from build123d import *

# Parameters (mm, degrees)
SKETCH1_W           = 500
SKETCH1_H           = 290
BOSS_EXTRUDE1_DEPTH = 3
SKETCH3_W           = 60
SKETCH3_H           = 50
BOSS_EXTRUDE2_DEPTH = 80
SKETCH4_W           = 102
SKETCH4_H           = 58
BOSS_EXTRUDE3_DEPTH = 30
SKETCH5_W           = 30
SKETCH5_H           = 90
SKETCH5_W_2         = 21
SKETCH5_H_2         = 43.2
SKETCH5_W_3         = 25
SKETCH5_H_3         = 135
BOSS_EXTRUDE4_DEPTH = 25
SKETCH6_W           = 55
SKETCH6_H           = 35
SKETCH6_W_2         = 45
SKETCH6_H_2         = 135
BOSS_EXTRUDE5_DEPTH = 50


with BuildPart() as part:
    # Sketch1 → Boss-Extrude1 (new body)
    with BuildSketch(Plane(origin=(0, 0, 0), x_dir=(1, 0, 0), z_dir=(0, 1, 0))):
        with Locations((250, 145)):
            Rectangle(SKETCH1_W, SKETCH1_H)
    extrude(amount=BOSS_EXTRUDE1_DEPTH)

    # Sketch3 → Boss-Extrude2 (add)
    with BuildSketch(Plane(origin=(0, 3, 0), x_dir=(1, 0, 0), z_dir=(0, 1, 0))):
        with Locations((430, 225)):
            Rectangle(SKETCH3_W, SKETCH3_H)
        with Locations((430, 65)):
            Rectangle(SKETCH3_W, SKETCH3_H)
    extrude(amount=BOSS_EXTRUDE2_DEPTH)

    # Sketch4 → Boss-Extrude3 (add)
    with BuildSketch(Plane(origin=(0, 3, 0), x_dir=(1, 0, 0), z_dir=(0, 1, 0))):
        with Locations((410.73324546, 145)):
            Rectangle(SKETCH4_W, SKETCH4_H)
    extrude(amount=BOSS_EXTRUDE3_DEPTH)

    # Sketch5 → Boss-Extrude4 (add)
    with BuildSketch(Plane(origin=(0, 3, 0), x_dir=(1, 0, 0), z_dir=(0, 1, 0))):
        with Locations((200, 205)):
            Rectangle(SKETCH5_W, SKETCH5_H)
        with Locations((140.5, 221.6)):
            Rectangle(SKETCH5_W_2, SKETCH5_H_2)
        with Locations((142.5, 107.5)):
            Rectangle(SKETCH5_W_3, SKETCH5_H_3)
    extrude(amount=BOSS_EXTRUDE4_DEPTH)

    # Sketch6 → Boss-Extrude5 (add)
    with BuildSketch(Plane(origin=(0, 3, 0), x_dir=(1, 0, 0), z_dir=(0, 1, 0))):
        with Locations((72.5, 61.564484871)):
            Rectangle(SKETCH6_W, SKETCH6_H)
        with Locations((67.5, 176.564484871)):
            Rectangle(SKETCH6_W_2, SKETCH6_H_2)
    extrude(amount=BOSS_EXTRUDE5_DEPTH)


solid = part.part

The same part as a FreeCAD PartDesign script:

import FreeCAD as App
import Part
import Sketcher
from FreeCAD import Vector

doc = App.newDocument("Part")
params = doc.addObject("Spreadsheet::Sheet", "Params")
for row, (alias, value) in enumerate([
    ("sketch1_width", "500 mm"),
    ("sketch1_height", "290 mm"),
    ("pad1_length", "3 mm"),
    ("sketch2_width", "60 mm"),
    ("sketch2_height", "50 mm"),
    ("pad2_length", "80 mm"),
    ("sketch3_width", "102 mm"),
    ("sketch3_height", "58 mm"),
    ("pad3_length", "30 mm"),
    ("sketch4_width", "30 mm"),
    ("sketch4_width2", "21 mm"),
    ("sketch4_width3", "25 mm"),
    ("sketch4_height", "90 mm"),
    ("sketch4_height2", "135 mm"),
    ("pad4_length", "25 mm"),
    ("sketch5_width", "55 mm"),
    ("sketch5_width2", "45 mm"),
    ("sketch5_height", "35 mm"),
    ("sketch5_height2", "135 mm"),
    ("pad5_length", "50 mm"),
], start=1):
    params.set(f"A{row}", alias)
    params.set(f"B{row}", "=" + value)
    params.setAlias(f"B{row}", alias)

body = doc.addObject("PartDesign::Body", "Body")

# Sketch on XZ plane
sketch1 = body.newObject("Sketcher::SketchObject", "Sketch")
sketch1.AttachmentSupport = (doc.getObject("XZ_Plane"), [""])
sketch1.MapMode = "FlatFace"
sketch1.addGeometry([
    Part.LineSegment(Vector(0, -290, 0), Vector(0, 0, 0)),
    Part.LineSegment(Vector(0, 0, 0), Vector(500, 0, 0)),
    Part.LineSegment(Vector(500, 0, 0), Vector(500, -290, 0)),
    Part.LineSegment(Vector(500, -290, 0), Vector(0, -290, 0)),
], False)
sketch1.addConstraint([
    Sketcher.Constraint("Coincident", 0, 2, 1, 1),
    Sketcher.Constraint("Coincident", 1, 2, 2, 1),
    Sketcher.Constraint("Coincident", 2, 2, 3, 1),
    Sketcher.Constraint("Coincident", 3, 2, 0, 1),
    Sketcher.Constraint("Vertical", 0),
    Sketcher.Constraint("Horizontal", 1),
    Sketcher.Constraint("Vertical", 2),
    Sketcher.Constraint("Horizontal", 3),
    Sketcher.Constraint("Coincident", 0, 2, -1, 1),
    Sketcher.Constraint("DistanceX", 1, 1, 1, 2, 500.0),
    Sketcher.Constraint("DistanceY", 0, 1, 0, 2, 290.0),
])
sketch1.setExpression("Constraints[9]", "Params.sketch1_width")
sketch1.setExpression("Constraints[10]", "Params.sketch1_height")
pad1 = body.newObject("PartDesign::Pad", "Pad")
pad1.Profile = sketch1
pad1.setExpression("Length", "Params.pad1_length")
pad1.Reversed = True

# Sketch on XZ plane
sketch2 = body.newObject("Sketcher::SketchObject", "Sketch001")
sketch2.AttachmentSupport = (doc.getObject("XZ_Plane"), [""])
sketch2.MapMode = "FlatFace"
sketch2.AttachmentOffset = App.Placement(Vector(0, 0, -3), App.Rotation())
sketch2.addGeometry([
    Part.LineSegment(Vector(400, -250, 0), Vector(400, -200, 0)),  # 0
    Part.LineSegment(Vector(400, -200, 0), Vector(460, -200, 0)),  # 1
    Part.LineSegment(Vector(460, -200, 0), Vector(460, -250, 0)),  # 2
    Part.LineSegment(Vector(460, -250, 0), Vector(400, -250, 0)),  # 3
    Part.LineSegment(Vector(400, -90, 0), Vector(400, -40, 0)),  # 4
    Part.LineSegment(Vector(400, -40, 0), Vector(460, -40, 0)),  # 5
    Part.LineSegment(Vector(460, -40, 0), Vector(460, -90, 0)),  # 6
    Part.LineSegment(Vector(460, -90, 0), Vector(400, -90, 0)),  # 7
], False)
sketch2.addConstraint([
    Sketcher.Constraint("Coincident", 0, 2, 1, 1),
    Sketcher.Constraint("Coincident", 1, 2, 2, 1),
    Sketcher.Constraint("Coincident", 2, 2, 3, 1),
    Sketcher.Constraint("Coincident", 3, 2, 0, 1),
    Sketcher.Constraint("Coincident", 4, 2, 5, 1),
    Sketcher.Constraint("Coincident", 5, 2, 6, 1),
    Sketcher.Constraint("Coincident", 6, 2, 7, 1),
    Sketcher.Constraint("Coincident", 7, 2, 4, 1),
    Sketcher.Constraint("Vertical", 0),
    Sketcher.Constraint("Horizontal", 1),
    Sketcher.Constraint("Vertical", 2),
    Sketcher.Constraint("Horizontal", 3),
    Sketcher.Constraint("Vertical", 4),
    Sketcher.Constraint("Horizontal", 5),
    Sketcher.Constraint("Vertical", 6),
    Sketcher.Constraint("Horizontal", 7),
    Sketcher.Constraint("Vertical", 3, 2, 4, 2),
    Sketcher.Constraint("Vertical", 2, 2, 5, 2),
    Sketcher.Constraint("Equal", 2, 4),
    Sketcher.Constraint("DistanceX", 1, 1, 1, 2, 60.0),
    Sketcher.Constraint("DistanceY", 0, 1, 0, 2, 50.0),
    Sketcher.Constraint("DistanceX", -1, 1, 0, 2, 400.0),
    Sketcher.Constraint("DistanceY", 0, 2, -1, 1, 200.0),
    Sketcher.Constraint("DistanceY", 4, 2, -1, 1, 40.0),
])
sketch2.setExpression("Constraints[19]", "Params.sketch2_width")
sketch2.setExpression("Constraints[20]", "Params.sketch2_height")
pad2 = body.newObject("PartDesign::Pad", "Pad001")
pad2.Profile = sketch2
pad2.setExpression("Length", "Params.pad2_length")
pad2.Reversed = True

# Sketch on XZ plane
sketch3 = body.newObject("Sketcher::SketchObject", "Sketch002")
sketch3.AttachmentSupport = (doc.getObject("XZ_Plane"), [""])
sketch3.MapMode = "FlatFace"
sketch3.AttachmentOffset = App.Placement(Vector(0, 0, -3), App.Rotation())
sketch3.addGeometry([
    Part.LineSegment(Vector(360, -174, 0), Vector(360, -116, 0)),
    Part.LineSegment(Vector(360, -116, 0), Vector(462, -116, 0)),
    Part.LineSegment(Vector(462, -116, 0), Vector(462, -174, 0)),
    Part.LineSegment(Vector(462, -174, 0), Vector(360, -174, 0)),
], False)
sketch3.addConstraint([
    Sketcher.Constraint("Coincident", 0, 2, 1, 1),
    Sketcher.Constraint("Coincident", 1, 2, 2, 1),
    Sketcher.Constraint("Coincident", 2, 2, 3, 1),
    Sketcher.Constraint("Coincident", 3, 2, 0, 1),
    Sketcher.Constraint("Vertical", 0),
    Sketcher.Constraint("Horizontal", 1),
    Sketcher.Constraint("Vertical", 2),
    Sketcher.Constraint("Horizontal", 3),
    Sketcher.Constraint("DistanceX", 1, 1, 1, 2, 102.0),
    Sketcher.Constraint("DistanceY", 0, 1, 0, 2, 58.0),
    Sketcher.Constraint("DistanceY", 0, 2, -1, 1, 116.0),
    Sketcher.Constraint("DistanceX", -1, 1, 0, 2, 359.733245),
])
sketch3.setExpression("Constraints[8]", "Params.sketch3_width")
sketch3.setExpression("Constraints[9]", "Params.sketch3_height")
pad3 = body.newObject("PartDesign::Pad", "Pad002")
pad3.Profile = sketch3
pad3.setExpression("Length", "Params.pad3_length")
pad3.Reversed = True

# Sketch on XZ plane
sketch4 = body.newObject("Sketcher::SketchObject", "Sketch003")
sketch4.AttachmentSupport = (doc.getObject("XZ_Plane"), [""])
sketch4.MapMode = "FlatFace"
sketch4.AttachmentOffset = App.Placement(Vector(0, 0, -3), App.Rotation())
sketch4.addGeometry([
    Part.LineSegment(Vector(185, -250, 0), Vector(185, -160, 0)),  # 0
    Part.LineSegment(Vector(185, -160, 0), Vector(215, -160, 0)),  # 1
    Part.LineSegment(Vector(215, -160, 0), Vector(215, -250, 0)),  # 2
    Part.LineSegment(Vector(215, -250, 0), Vector(185, -250, 0)),  # 3
    Part.LineSegment(Vector(130, -243, 0), Vector(130, -200, 0)),  # 4
    Part.LineSegment(Vector(130, -200, 0), Vector(151, -200, 0)),  # 5
    Part.LineSegment(Vector(151, -200, 0), Vector(151, -243, 0)),  # 6
    Part.LineSegment(Vector(151, -243, 0), Vector(130, -243, 0)),  # 7
    Part.LineSegment(Vector(130, -175, 0), Vector(130, -40, 0)),  # 8
    Part.LineSegment(Vector(130, -40, 0), Vector(155, -40, 0)),  # 9
    Part.LineSegment(Vector(155, -40, 0), Vector(155, -175, 0)),  # 10
    Part.LineSegment(Vector(155, -175, 0), Vector(130, -175, 0)),  # 11
], False)
sketch4.addConstraint([
    Sketcher.Constraint("Coincident", 0, 2, 1, 1),
    Sketcher.Constraint("Coincident", 1, 2, 2, 1),
    Sketcher.Constraint("Coincident", 2, 2, 3, 1),
    Sketcher.Constraint("Coincident", 3, 2, 0, 1),
    Sketcher.Constraint("Coincident", 4, 2, 5, 1),
    Sketcher.Constraint("Coincident", 5, 2, 6, 1),
    Sketcher.Constraint("Coincident", 6, 2, 7, 1),
    Sketcher.Constraint("Coincident", 7, 2, 4, 1),
    Sketcher.Constraint("Coincident", 8, 2, 9, 1),
    Sketcher.Constraint("Coincident", 9, 2, 10, 1),
    Sketcher.Constraint("Coincident", 10, 2, 11, 1),
    Sketcher.Constraint("Coincident", 11, 2, 8, 1),
    Sketcher.Constraint("Vertical", 0),
    Sketcher.Constraint("Horizontal", 1),
    Sketcher.Constraint("Vertical", 2),
    Sketcher.Constraint("Horizontal", 3),
    Sketcher.Constraint("Vertical", 4),
    Sketcher.Constraint("Horizontal", 5),
    Sketcher.Constraint("Vertical", 6),
    Sketcher.Constraint("Horizontal", 7),
    Sketcher.Constraint("Vertical", 8),
    Sketcher.Constraint("Horizontal", 9),
    Sketcher.Constraint("Vertical", 10),
    Sketcher.Constraint("Horizontal", 11),
    Sketcher.Constraint("Vertical", 7, 2, 8, 2),
    Sketcher.Constraint("DistanceX", 1, 1, 1, 2, 30.0),
    Sketcher.Constraint("DistanceX", 5, 1, 5, 2, 21.0),
    Sketcher.Constraint("DistanceX", 9, 1, 9, 2, 25.0),
    Sketcher.Constraint("DistanceY", 0, 1, 0, 2, 90.0),
    Sketcher.Constraint("DistanceY", 8, 1, 8, 2, 135.0),
    Sketcher.Constraint("DistanceY", 4, 1, 4, 2, 43.2),
    Sketcher.Constraint("DistanceX", -1, 1, 0, 2, 185.0),
    Sketcher.Constraint("DistanceY", 0, 2, -1, 1, 160.0),
    Sketcher.Constraint("DistanceX", -1, 1, 4, 2, 130.0),
    Sketcher.Constraint("DistanceY", 4, 2, -1, 1, 200.0),
    Sketcher.Constraint("DistanceY", 8, 2, -1, 1, 40.0),
])
sketch4.setExpression("Constraints[25]", "Params.sketch4_width")
sketch4.setExpression("Constraints[26]", "Params.sketch4_width2")
sketch4.setExpression("Constraints[27]", "Params.sketch4_width3")
sketch4.setExpression("Constraints[28]", "Params.sketch4_height")
sketch4.setExpression("Constraints[29]", "Params.sketch4_height2")
pad4 = body.newObject("PartDesign::Pad", "Pad003")
pad4.Profile = sketch4
pad4.setExpression("Length", "Params.pad4_length")
pad4.Reversed = True

# Sketch on XZ plane
sketch5 = body.newObject("Sketcher::SketchObject", "Sketch004")
sketch5.AttachmentSupport = (doc.getObject("XZ_Plane"), [""])
sketch5.MapMode = "FlatFace"
sketch5.AttachmentOffset = App.Placement(Vector(0, 0, -3), App.Rotation())
sketch5.addGeometry([
    Part.LineSegment(Vector(45, -79, 0), Vector(45, -44, 0)),  # 0
    Part.LineSegment(Vector(45, -44, 0), Vector(100, -44, 0)),  # 1
    Part.LineSegment(Vector(100, -44, 0), Vector(100, -79, 0)),  # 2
    Part.LineSegment(Vector(100, -79, 0), Vector(45, -79, 0)),  # 3
    Part.LineSegment(Vector(45, -244, 0), Vector(45, -109, 0)),  # 4
    Part.LineSegment(Vector(45, -109, 0), Vector(90, -109, 0)),  # 5
    Part.LineSegment(Vector(90, -109, 0), Vector(90, -244, 0)),  # 6
    Part.LineSegment(Vector(90, -244, 0), Vector(45, -244, 0)),  # 7
], False)
sketch5.addConstraint([
    Sketcher.Constraint("Coincident", 0, 2, 1, 1),
    Sketcher.Constraint("Coincident", 1, 2, 2, 1),
    Sketcher.Constraint("Coincident", 2, 2, 3, 1),
    Sketcher.Constraint("Coincident", 3, 2, 0, 1),
    Sketcher.Constraint("Coincident", 4, 2, 5, 1),
    Sketcher.Constraint("Coincident", 5, 2, 6, 1),
    Sketcher.Constraint("Coincident", 6, 2, 7, 1),
    Sketcher.Constraint("Coincident", 7, 2, 4, 1),
    Sketcher.Constraint("Vertical", 0),
    Sketcher.Constraint("Horizontal", 1),
    Sketcher.Constraint("Vertical", 2),
    Sketcher.Constraint("Horizontal", 3),
    Sketcher.Constraint("Vertical", 4),
    Sketcher.Constraint("Horizontal", 5),
    Sketcher.Constraint("Vertical", 6),
    Sketcher.Constraint("Horizontal", 7),
    Sketcher.Constraint("Vertical", 3, 2, 4, 2),
    Sketcher.Constraint("DistanceX", 1, 1, 1, 2, 55.0),
    Sketcher.Constraint("DistanceX", 5, 1, 5, 2, 45.0),
    Sketcher.Constraint("DistanceY", 0, 1, 0, 2, 35.0),
    Sketcher.Constraint("DistanceY", 4, 1, 4, 2, 135.0),
    Sketcher.Constraint("DistanceX", -1, 1, 0, 2, 45.0),
    Sketcher.Constraint("DistanceY", 4, 2, 3, 2, 30.0),
    Sketcher.Constraint("DistanceY", 0, 2, -1, 1, 44.064485),
])
sketch5.setExpression("Constraints[17]", "Params.sketch5_width")
sketch5.setExpression("Constraints[18]", "Params.sketch5_width2")
sketch5.setExpression("Constraints[19]", "Params.sketch5_height")
sketch5.setExpression("Constraints[20]", "Params.sketch5_height2")
pad5 = body.newObject("PartDesign::Pad", "Pad004")
pad5.Profile = sketch5
pad5.setExpression("Length", "Params.pad5_length")
pad5.Reversed = True

doc.recompute()
